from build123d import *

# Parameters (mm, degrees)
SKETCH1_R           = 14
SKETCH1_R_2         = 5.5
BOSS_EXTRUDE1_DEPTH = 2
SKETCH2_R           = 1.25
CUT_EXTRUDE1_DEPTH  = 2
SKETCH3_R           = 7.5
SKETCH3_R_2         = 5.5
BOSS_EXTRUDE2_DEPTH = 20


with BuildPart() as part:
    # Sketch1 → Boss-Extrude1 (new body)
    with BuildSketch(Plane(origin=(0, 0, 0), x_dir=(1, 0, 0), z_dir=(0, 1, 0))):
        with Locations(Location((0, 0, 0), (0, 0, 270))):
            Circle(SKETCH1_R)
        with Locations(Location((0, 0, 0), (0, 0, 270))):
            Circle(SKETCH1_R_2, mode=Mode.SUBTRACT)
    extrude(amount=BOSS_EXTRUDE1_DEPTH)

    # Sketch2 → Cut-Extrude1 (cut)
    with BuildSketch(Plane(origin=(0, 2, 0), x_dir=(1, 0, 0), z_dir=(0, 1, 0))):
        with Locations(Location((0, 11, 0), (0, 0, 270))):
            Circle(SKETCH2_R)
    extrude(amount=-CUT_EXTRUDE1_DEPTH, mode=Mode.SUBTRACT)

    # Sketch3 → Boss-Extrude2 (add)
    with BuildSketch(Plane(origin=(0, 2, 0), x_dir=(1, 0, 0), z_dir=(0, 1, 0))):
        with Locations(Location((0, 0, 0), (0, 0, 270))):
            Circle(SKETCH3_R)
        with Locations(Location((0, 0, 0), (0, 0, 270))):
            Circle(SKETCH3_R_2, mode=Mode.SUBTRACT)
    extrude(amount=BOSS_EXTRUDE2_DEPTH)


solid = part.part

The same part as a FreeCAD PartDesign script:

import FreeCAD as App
import Part
import Sketcher
from FreeCAD import Vector
Q = App.Units.Quantity

doc = App.newDocument("Part")
params = doc.addObject("Spreadsheet::Sheet", "Params")
for row, (alias, value) in enumerate([
    ("sketch1_diameter", "28 mm"),
    ("sketch1_diameter2", "11 mm"),
    ("pad1_length", "2 mm"),
    ("sketch2_diameter", "2.5 mm"),
    ("pocket1_length", "2 mm"),
    ("sketch3_diameter", "15 mm"),
    ("sketch3_diameter2", "11 mm"),
    ("pad2_length", "20 mm"),
], start=1):
    params.set(f"A{row}", alias)
    params.set(f"B{row}", "=" + value)
    params.setAlias(f"B{row}", alias)

body = doc.addObject("PartDesign::Body", "Body")

sketch1 = doc.addObject("Sketcher::SketchObject", "Sketch")
body.addObject(sketch1)
sketch1.AttachmentSupport = (doc.XZ_Plane, [""])
sketch1.MapMode = "FlatFace"
sketch1.addGeometry([
    Part.Circle(Vector(0, 0, 0), Vector(0, 0, 1), 14),
    Part.Circle(Vector(0, 0, 0), Vector(0, 0, 1), 6),
], False)
sketch1.addConstraint([
    Sketcher.Constraint("Coincident", 0, 3, -1, 1),
    Sketcher.Constraint("Coincident", 1, 3, -1, 1),
    Sketcher.Constraint("Diameter", 0, Q("28 mm")),
    Sketcher.Constraint("Diameter", 1, Q("11 mm")),
])
sketch1.setExpression("Constraints[2]", "Params.sketch1_diameter")
sketch1.setExpression("Constraints[3]", "Params.sketch1_diameter2")
pad1 = doc.addObject("PartDesign::Pad", "Pad")
body.addObject(pad1)
pad1.Profile = sketch1
pad1.setExpression("Length", "Params.pad1_length")
pad1.Reversed = True

sketch2 = doc.addObject("Sketcher::SketchObject", "Sketch001")
body.addObject(sketch2)
sketch2.AttachmentSupport = (doc.XZ_Plane, [""])
sketch2.MapMode = "FlatFace"
sketch2.AttachmentOffset = App.Placement(Vector(0, 0, -2), App.Rotation())
sketch2.addGeometry(Part.Circle(Vector(0, -11, 0), Vector(0, 0, 1), 1.2), False)
sketch2.addConstraint([
    Sketcher.Constraint("PointOnObject", 0, 3, -2),
    Sketcher.Constraint("Diameter", 0, Q("2.5 mm")),
    Sketcher.Constraint("DistanceY", 0, 3, -1, 1, Q("11 mm")),
])
sketch2.setExpression("Constraints[1]", "Params.sketch2_diameter")
pocket1 = doc.addObject("PartDesign::Pocket", "Pocket")
body.addObject(pocket1)
pocket1.Profile = sketch2
pocket1.setExpression("Length", "Params.pocket1_length")
pocket1.Reversed = True

sketch3 = doc.addObject("Sketcher::SketchObject", "Sketch002")
body.addObject(sketch3)
sketch3.AttachmentSupport = (doc.XZ_Plane, [""])
sketch3.MapMode = "FlatFace"
sketch3.AttachmentOffset = App.Placement(Vector(0, 0, -2), App.Rotation())
sketch3.addGeometry([
    Part.Circle(Vector(0, 0, 0), Vector(0, 0, 1), 8),
    Part.Circle(Vector(0, 0, 0), Vector(0, 0, 1), 6),
], False)
sketch3.addConstraint([
    Sketcher.Constraint("Coincident", 0, 3, -1, 1),
    Sketcher.Constraint("Coincident", 1, 3, -1, 1),
    Sketcher.Constraint("Diameter", 0, Q("15 mm")),
    Sketcher.Constraint("Diameter", 1, Q("11 mm")),
])
sketch3.setExpression("Constraints[2]", "Params.sketch3_diameter")
sketch3.setExpression("Constraints[3]", "Params.sketch3_diameter2")
pad2 = doc.addObject("PartDesign::Pad", "Pad001")
body.addObject(pad2)
pad2.Profile = sketch3
pad2.setExpression("Length", "Params.pad2_length")
pad2.Reversed = True

doc.recompute()
